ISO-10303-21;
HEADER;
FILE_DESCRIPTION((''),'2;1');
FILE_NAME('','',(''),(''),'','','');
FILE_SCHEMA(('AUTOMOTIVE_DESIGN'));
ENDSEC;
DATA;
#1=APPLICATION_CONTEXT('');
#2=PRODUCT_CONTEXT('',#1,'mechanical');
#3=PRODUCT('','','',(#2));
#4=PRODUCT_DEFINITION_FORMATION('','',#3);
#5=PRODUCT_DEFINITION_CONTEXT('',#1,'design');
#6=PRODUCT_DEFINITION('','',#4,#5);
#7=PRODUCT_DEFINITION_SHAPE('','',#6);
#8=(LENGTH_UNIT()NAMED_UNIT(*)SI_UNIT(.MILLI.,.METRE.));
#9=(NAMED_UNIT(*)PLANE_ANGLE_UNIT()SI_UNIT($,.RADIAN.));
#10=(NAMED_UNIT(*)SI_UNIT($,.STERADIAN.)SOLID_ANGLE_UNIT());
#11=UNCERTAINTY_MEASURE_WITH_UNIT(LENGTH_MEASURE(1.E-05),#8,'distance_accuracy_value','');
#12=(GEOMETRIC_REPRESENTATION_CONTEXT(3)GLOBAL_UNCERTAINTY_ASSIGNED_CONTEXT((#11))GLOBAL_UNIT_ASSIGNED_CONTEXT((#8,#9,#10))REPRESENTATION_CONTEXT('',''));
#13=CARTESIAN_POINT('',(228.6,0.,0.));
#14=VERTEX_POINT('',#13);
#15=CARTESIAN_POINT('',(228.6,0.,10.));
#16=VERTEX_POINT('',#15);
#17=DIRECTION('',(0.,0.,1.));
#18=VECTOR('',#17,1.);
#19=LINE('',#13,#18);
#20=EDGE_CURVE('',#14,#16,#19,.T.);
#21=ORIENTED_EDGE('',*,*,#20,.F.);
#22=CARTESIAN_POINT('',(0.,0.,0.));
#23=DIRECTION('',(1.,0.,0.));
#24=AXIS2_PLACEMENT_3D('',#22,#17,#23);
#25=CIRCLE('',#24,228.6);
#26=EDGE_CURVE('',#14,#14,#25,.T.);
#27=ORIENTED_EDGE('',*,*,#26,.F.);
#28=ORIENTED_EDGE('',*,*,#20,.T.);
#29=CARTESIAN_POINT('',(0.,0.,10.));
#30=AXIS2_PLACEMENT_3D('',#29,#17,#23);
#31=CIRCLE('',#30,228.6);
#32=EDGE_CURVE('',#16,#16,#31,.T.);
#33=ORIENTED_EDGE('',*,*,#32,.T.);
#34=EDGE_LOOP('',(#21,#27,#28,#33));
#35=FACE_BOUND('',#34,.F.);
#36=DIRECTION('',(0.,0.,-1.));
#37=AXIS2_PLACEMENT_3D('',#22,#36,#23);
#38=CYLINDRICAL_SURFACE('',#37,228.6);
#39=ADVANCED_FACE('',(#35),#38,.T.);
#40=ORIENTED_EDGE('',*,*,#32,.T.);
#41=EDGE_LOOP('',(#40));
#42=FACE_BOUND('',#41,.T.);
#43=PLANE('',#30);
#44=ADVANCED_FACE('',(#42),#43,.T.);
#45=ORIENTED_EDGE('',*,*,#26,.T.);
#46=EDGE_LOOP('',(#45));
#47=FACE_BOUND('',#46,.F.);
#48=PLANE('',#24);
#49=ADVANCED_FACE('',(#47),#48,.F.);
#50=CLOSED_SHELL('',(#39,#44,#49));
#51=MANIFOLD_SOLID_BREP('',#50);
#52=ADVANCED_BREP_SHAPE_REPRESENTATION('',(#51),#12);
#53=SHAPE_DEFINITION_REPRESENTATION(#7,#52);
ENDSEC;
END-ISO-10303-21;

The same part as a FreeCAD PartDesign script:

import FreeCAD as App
import Part
import Sketcher
from FreeCAD import Vector
Q = App.Units.Quantity

doc = App.newDocument("Part")
body = doc.addObject("PartDesign::Body", "Body")

# Sketch on XY plane
sketch1 = doc.addObject("Sketcher::SketchObject", "Sketch")
body.addObject(sketch1)
sketch1.AttachmentSupport = (doc.XY_Plane, [""])
sketch1.MapMode = "FlatFace"
sketch1.addGeometry(Part.Circle(Vector(0, 0, 0), Vector(0, 0, 1), 228.6), False)
sketch1.addConstraint([
    Sketcher.Constraint("Coincident", 0, 3, -1, 1),
    Sketcher.Constraint("Diameter", 0, Q("18 in")),
])
pad1 = doc.addObject("PartDesign::Pad", "Pad")
body.addObject(pad1)
pad1.Profile = sketch1
pad1.Length = Q("0.3937008 in")

doc.recompute()
